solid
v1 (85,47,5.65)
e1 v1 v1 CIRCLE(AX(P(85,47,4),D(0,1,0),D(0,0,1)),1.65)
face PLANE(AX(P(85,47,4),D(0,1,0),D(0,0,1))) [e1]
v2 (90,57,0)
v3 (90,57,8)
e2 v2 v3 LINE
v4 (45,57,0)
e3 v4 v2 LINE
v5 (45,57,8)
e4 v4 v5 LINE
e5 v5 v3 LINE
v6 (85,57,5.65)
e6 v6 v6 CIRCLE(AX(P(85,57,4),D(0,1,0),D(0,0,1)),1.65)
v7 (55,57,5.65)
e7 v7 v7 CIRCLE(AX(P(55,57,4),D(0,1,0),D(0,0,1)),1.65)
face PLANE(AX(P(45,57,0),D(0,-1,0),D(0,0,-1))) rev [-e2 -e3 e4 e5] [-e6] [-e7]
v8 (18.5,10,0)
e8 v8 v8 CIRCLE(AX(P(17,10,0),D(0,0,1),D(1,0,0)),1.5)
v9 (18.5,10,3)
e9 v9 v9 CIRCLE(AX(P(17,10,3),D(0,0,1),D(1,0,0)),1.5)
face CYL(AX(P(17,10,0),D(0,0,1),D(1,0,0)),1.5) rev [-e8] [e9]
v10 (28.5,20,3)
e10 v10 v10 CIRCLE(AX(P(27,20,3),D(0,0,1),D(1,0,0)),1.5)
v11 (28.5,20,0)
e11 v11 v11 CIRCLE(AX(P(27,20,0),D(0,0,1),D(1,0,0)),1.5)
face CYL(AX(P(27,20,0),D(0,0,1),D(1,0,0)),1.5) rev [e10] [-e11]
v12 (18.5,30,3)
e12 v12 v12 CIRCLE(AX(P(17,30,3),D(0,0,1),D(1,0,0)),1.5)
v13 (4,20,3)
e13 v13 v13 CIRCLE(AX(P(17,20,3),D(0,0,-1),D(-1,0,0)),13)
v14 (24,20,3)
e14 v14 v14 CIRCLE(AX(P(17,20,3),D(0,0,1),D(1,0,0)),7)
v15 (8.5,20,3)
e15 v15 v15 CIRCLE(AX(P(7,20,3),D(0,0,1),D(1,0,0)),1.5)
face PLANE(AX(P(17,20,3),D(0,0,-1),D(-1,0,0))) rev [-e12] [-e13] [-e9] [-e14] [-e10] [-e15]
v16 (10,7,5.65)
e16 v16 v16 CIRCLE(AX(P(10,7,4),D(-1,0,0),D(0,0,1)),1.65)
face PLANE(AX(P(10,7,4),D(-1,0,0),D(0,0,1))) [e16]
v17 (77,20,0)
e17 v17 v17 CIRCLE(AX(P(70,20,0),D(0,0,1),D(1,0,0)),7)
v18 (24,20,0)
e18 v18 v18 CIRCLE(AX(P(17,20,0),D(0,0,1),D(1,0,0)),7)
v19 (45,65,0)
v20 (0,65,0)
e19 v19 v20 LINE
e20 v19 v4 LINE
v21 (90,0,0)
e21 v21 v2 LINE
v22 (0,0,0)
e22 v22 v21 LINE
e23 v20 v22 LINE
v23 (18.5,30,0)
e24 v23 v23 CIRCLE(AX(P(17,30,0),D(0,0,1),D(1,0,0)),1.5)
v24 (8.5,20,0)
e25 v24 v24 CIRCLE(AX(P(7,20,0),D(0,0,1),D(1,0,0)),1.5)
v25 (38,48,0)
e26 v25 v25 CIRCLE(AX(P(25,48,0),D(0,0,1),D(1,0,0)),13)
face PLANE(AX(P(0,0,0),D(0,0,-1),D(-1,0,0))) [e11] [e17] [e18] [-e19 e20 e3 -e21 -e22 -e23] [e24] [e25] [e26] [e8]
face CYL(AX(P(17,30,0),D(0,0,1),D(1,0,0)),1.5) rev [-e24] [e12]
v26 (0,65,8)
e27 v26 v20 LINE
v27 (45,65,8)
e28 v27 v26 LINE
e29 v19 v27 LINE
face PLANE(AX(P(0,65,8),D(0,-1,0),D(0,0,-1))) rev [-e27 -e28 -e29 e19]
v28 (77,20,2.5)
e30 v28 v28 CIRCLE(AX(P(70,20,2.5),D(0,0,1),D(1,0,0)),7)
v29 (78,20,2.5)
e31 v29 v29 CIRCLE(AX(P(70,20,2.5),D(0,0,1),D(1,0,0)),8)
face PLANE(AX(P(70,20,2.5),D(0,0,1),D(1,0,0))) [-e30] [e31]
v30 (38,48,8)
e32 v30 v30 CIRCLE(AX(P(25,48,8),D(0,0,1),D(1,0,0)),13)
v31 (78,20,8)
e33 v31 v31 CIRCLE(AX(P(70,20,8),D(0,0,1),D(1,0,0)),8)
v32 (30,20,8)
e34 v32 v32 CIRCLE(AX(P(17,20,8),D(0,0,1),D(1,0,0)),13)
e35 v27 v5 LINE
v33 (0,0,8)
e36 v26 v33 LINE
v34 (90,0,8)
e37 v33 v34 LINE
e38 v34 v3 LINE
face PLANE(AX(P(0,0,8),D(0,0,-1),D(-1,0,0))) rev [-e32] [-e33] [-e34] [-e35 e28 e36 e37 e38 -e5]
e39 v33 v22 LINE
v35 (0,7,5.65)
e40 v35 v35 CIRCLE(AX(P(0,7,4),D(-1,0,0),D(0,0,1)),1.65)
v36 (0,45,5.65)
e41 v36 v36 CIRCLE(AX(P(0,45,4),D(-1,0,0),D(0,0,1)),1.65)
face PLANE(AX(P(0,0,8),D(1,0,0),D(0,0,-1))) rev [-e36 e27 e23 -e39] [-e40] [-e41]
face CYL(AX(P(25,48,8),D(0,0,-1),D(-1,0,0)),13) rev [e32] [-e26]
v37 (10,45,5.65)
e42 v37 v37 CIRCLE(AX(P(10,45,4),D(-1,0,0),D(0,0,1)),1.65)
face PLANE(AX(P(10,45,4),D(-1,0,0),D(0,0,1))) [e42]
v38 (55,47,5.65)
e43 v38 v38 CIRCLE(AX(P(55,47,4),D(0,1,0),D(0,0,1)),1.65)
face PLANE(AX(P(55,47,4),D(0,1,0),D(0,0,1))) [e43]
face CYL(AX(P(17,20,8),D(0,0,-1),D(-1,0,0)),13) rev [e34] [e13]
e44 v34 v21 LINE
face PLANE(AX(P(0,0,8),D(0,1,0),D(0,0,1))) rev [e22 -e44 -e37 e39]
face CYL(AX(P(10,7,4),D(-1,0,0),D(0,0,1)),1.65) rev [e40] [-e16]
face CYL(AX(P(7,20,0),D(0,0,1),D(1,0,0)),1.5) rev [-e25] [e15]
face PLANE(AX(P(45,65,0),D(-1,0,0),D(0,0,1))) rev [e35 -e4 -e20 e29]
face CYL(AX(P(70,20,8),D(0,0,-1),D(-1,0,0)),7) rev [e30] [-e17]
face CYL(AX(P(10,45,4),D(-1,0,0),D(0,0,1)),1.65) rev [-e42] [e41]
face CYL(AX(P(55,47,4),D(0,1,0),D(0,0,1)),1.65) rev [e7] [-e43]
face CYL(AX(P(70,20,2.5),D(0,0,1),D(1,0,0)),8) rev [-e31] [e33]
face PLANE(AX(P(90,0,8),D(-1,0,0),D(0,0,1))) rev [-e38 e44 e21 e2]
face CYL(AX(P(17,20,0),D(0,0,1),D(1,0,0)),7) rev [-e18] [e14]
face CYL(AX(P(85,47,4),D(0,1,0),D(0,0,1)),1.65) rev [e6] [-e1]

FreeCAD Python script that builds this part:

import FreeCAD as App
import Part
import Sketcher

V = App.Vector
Q = App.Units.Quantity

doc = App.newDocument("Part")
params = doc.addObject("Spreadsheet::Sheet", "Params")
for row, (alias, value) in enumerate([
    ("sketch1_diameter", "26 mm"),
    ("sketch1_diameter2", "14 mm"),
    ("sketch1_width", "90 mm"),
    ("sketch1_height", "65 mm"),
    ("pad1_length", "8 mm"),
    ("sketch2_diameter", "26 mm"),
    ("pad2_length", "3 mm"),
    ("sketch3_diameter", "14 mm"),
    ("sketch3_diameter2", "3 mm"),
    ("sketch4_diameter", "16 mm"),
    ("pocket2_length", "5.5 mm"),
    ("sketch5_width", "45 mm"),
    ("sketch5_height", "8 mm"),
    ("sketch6_diameter", "3.3 mm"),
    ("pocket4_length", "10 mm"),
    ("sketch7_diameter", "3.3 mm"),
    ("pocket5_length", "10 mm"),
], start=1):
    params.set(f"A{row}", alias)
    params.set(f"B{row}", "=" + value)
    params.setAlias(f"B{row}", alias)

body = doc.addObject("PartDesign::Body", "Body")

# Sketch on XY plane
sketch1 = body.newObject("Sketcher::SketchObject", "Sketch")
sketch1.AttachmentSupport = (doc.getObject("XY_Plane"), [""])
sketch1.MapMode = "FlatFace"
sketch1.addGeometry([
    Part.LineSegment(V(0, 65, 0), V(0, 0, 0)),  # 0
    Part.LineSegment(V(0, 0, 0), V(90, 0, 0)),  # 1
    Part.LineSegment(V(90, 0, 0), V(90, 65, 0)),  # 2
    Part.LineSegment(V(90, 65, 0), V(0, 65, 0)),  # 3
    Part.Circle(V(17, 20, 0), V(0, 0, 1), 13),  # 4
    Part.Circle(V(70, 20, 0), V(0, 0, 1), 7),  # 5
    Part.Circle(V(25, 48, 0), V(0, 0, 1), 13),  # 6
], False)
sketch1.addConstraint([
    Sketcher.Constraint("Coincident", 0, 2, 1, 1),
    Sketcher.Constraint("Coincident", 1, 2, 2, 1),
    Sketcher.Constraint("Coincident", 2, 2, 3, 1),
    Sketcher.Constraint("Coincident", 3, 2, 0, 1),
    Sketcher.Constraint("Vertical", 0),
    Sketcher.Constraint("Horizontal", 1),
    Sketcher.Constraint("Vertical", 2),
    Sketcher.Constraint("Horizontal", 3),
    Sketcher.Constraint("Coincident", 0, 2, -1, 1),
    Sketcher.Constraint("Equal", 4, 6),
    Sketcher.Constraint("Horizontal", 4, 3, 5, 3),
    Sketcher.Constraint("Diameter", 4, Q("26 mm")),
    Sketcher.Constraint("Diameter", 5, Q("14 mm")),
    Sketcher.Constraint("DistanceX", 1, 1, 1, 2, Q("90 mm")),
    Sketcher.Constraint("DistanceY", 0, 2, 0, 1, Q("65 mm")),
    Sketcher.Constraint("DistanceX", -1, 1, 4, 3, Q("17 mm")),
    Sketcher.Constraint("DistanceY", -1, 1, 4, 3, Q("20 mm")),
    Sketcher.Constraint("DistanceX", -1, 1, 5, 3, Q("70 mm")),
    Sketcher.Constraint("DistanceX", -1, 1, 6, 3, Q("25 mm")),
    Sketcher.Constraint("DistanceY", -1, 1, 6, 3, Q("48 mm")),
])
sketch1.setExpression("Constraints[11]", "Params.sketch1_diameter")
sketch1.setExpression("Constraints[12]", "Params.sketch1_diameter2")
sketch1.setExpression("Constraints[13]", "Params.sketch1_width")
sketch1.setExpression("Constraints[14]", "Params.sketch1_height")
pad1 = body.newObject("PartDesign::Pad", "Pad")
pad1.Profile = sketch1
pad1.setExpression("Length", "Params.pad1_length")

# Sketch on XY plane
sketch2 = body.newObject("Sketcher::SketchObject", "Sketch001")
sketch2.AttachmentSupport = (doc.getObject("XY_Plane"), [""])
sketch2.MapMode = "FlatFace"
sketch2.addGeometry(Part.Circle(V(17, 20, 0), V(0, 0, 1), 13), False)
sketch2.addConstraint([
    Sketcher.Constraint("Diameter", 0, Q("26 mm")),
    Sketcher.Constraint("DistanceX", -1, 1, 0, 3, Q("17 mm")),
    Sketcher.Constraint("DistanceY", -1, 1, 0, 3, Q("20 mm")),
])
sketch2.setExpression("Constraints[0]", "Params.sketch2_diameter")
pad2 = body.newObject("PartDesign::Pad", "Pad001")
pad2.Profile = sketch2
pad2.setExpression("Length", "Params.pad2_length")

# Sketch on XY plane
sketch3 = body.newObject("Sketcher::SketchObject", "Sketch002")
sketch3.AttachmentSupport = (doc.getObject("XY_Plane"), [""])
sketch3.MapMode = "FlatFace"
sketch3.AttachmentOffset = App.Placement(V(0, 0, 3), App.Rotation())
sketch3.addGeometry([
    Part.Circle(V(17, 20, 0), V(0, 0, 1), 7),  # 0
    Part.Circle(V(27, 20, 0), V(0, 0, 1), 1.5),  # 1
    Part.Circle(V(17, 10, 0), V(0, 0, 1), 1.5),  # 2
    Part.Circle(V(7, 20, 0), V(0, 0, 1), 1.5),  # 3
    Part.Circle(V(17, 30, 0), V(0, 0, 1), 1.5),  # 4
], False)
sketch3.addConstraint([
    Sketcher.Constraint("Equal", 1, 2),
    Sketcher.Constraint("Equal", 2, 3),
    Sketcher.Constraint("Equal", 3, 4),
    Sketcher.Constraint("Horizontal", 0, 3, 1, 3),
    Sketcher.Constraint("Horizontal", 1, 3, 3, 3),
    Sketcher.Constraint("Vertical", 0, 3, 2, 3),
    Sketcher.Constraint("Vertical", 2, 3, 4, 3),
    Sketcher.Constraint("Diameter", 0, Q("14 mm")),
    Sketcher.Constraint("Diameter", 1, Q("3 mm")),
    Sketcher.Constraint("DistanceX", -1, 1, 0, 3, Q("17 mm")),
    Sketcher.Constraint("DistanceY", -1, 1, 0, 3, Q("20 mm")),
    Sketcher.Constraint("DistanceX", -1, 1, 1, 3, Q("27 mm")),
    Sketcher.Constraint("DistanceY", -1, 1, 2, 3, Q("10 mm")),
    Sketcher.Constraint("DistanceX", -1, 1, 3, 3, Q("7 mm")),
    Sketcher.Constraint("DistanceY", -1, 1, 4, 3, Q("30 mm")),
])
sketch3.setExpression("Constraints[7]", "Params.sketch3_diameter")
sketch3.setExpression("Constraints[8]", "Params.sketch3_diameter2")
pocket1 = body.newObject("PartDesign::Pocket", "Pocket")
pocket1.Profile = sketch3
pocket1.Type = "ThroughAll"

# Sketch on XY plane
sketch4 = body.newObject("Sketcher::SketchObject", "Sketch003")
sketch4.AttachmentSupport = (doc.getObject("XY_Plane"), [""])
sketch4.MapMode = "FlatFace"
sketch4.AttachmentOffset = App.Placement(V(0, 0, 8), App.Rotation())
sketch4.addGeometry(Part.Circle(V(70, 20, 0), V(0, 0, 1), 8), False)
sketch4.addConstraint([
    Sketcher.Constraint("Diameter", 0, Q("16 mm")),
    Sketcher.Constraint("DistanceX", -1, 1, 0, 3, Q("70 mm")),
    Sketcher.Constraint("DistanceY", -1, 1, 0, 3, Q("20 mm")),
])
sketch4.setExpression("Constraints[0]", "Params.sketch4_diameter")
pocket2 = body.newObject("PartDesign::Pocket", "Pocket001")
pocket2.Profile = sketch4
pocket2.setExpression("Length", "Params.pocket2_length")

# Sketch on XY plane
sketch5 = body.newObject("Sketcher::SketchObject", "Sketch004")
sketch5.AttachmentSupport = (doc.getObject("XY_Plane"), [""])
sketch5.MapMode = "FlatFace"
sketch5.AttachmentOffset = App.Placement(V(0, 0, 8), App.Rotation())
sketch5.addGeometry([
    Part.LineSegment(V(45, 65, 0), V(45, 57, 0)),
    Part.LineSegment(V(45, 57, 0), V(90, 57, 0)),
    Part.LineSegment(V(90, 57, 0), V(90, 65, 0)),
    Part.LineSegment(V(90, 65, 0), V(45, 65, 0)),
], False)
sketch5.addConstraint([
    Sketcher.Constraint("Coincident", 0, 2, 1, 1),
    Sketcher.Constraint("Coincident", 1, 2, 2, 1),
    Sketcher.Constraint("Coincident", 2, 2, 3, 1),
    Sketcher.Constraint("Coincident", 3, 2, 0, 1),
    Sketcher.Constraint("Vertical", 0),
    Sketcher.Constraint("Horizontal", 1),
    Sketcher.Constraint("Vertical", 2),
    Sketcher.Constraint("Horizontal", 3),
    Sketcher.Constraint("DistanceX", 1, 1, 1, 2, Q("45 mm")),
    Sketcher.Constraint("DistanceY", 0, 2, 0, 1, Q("8 mm")),
    Sketcher.Constraint("DistanceX", -1, 1, 0, 2, Q("45 mm")),
    Sketcher.Constraint("DistanceY", -1, 1, 0, 2, Q("57 mm")),
])
sketch5.setExpression("Constraints[8]", "Params.sketch5_width")
sketch5.setExpression("Constraints[9]", "Params.sketch5_height")
pocket3 = body.newObject("PartDesign::Pocket", "Pocket002")
pocket3.Profile = sketch5
pocket3.Type = "ThroughAll"

# Sketch on YZ plane
sketch6 = body.newObject("Sketcher::SketchObject", "Sketch005")
sketch6.AttachmentSupport = (doc.getObject("YZ_Plane"), [""])
sketch6.MapMode = "FlatFace"
sketch6.addGeometry([
    Part.Circle(V(7, 4, 0), V(0, 0, 1), 1.6),
    Part.Circle(V(45, 4, 0), V(0, 0, 1), 1.6),
], False)
sketch6.addConstraint([
    Sketcher.Constraint("Equal", 0, 1),
    Sketcher.Constraint("Horizontal", 0, 3, 1, 3),
    Sketcher.Constraint("Diameter", 0, Q("3.3 mm")),
    Sketcher.Constraint("DistanceX", -1, 1, 0, 3, Q("7 mm")),
    Sketcher.Constraint("DistanceY", -1, 1, 0, 3, Q("4 mm")),
    Sketcher.Constraint("DistanceX", -1, 1, 1, 3, Q("45 mm")),
])
sketch6.setExpression("Constraints[2]", "Params.sketch6_diameter")
pocket4 = body.newObject("PartDesign::Pocket", "Pocket003")
pocket4.Profile = sketch6
pocket4.setExpression("Length", "Params.pocket4_length")
pocket4.Reversed = True

# Sketch on XZ plane
sketch7 = body.newObject("Sketcher::SketchObject", "Sketch006")
sketch7.AttachmentSupport = (doc.getObject("XZ_Plane"), [""])
sketch7.MapMode = "FlatFace"
sketch7.AttachmentOffset = App.Placement(V(0, 0, -57), App.Rotation())
sketch7.addGeometry([
    Part.Circle(V(85, 4, 0), V(0, 0, 1), 1.6),
    Part.Circle(V(55, 4, 0), V(0, 0, 1), 1.6),
], False)
sketch7.addConstraint([
    Sketcher.Constraint("Equal", 0, 1),
    Sketcher.Constraint("Horizontal", 0, 3, 1, 3),
    Sketcher.Constraint("Diameter", 0, Q("3.3 mm")),
    Sketcher.Constraint("DistanceX", -1, 1, 0, 3, Q("85 mm")),
    Sketcher.Constraint("DistanceY", -1, 1, 0, 3, Q("4 mm")),
    Sketcher.Constraint("DistanceX", -1, 1, 1, 3, Q("55 mm")),
])
sketch7.setExpression("Constraints[2]", "Params.sketch7_diameter")
pocket5 = body.newObject("PartDesign::Pocket", "Pocket004")
pocket5.Profile = sketch7
pocket5.setExpression("Length", "Params.pocket5_length")
pocket5.Reversed = True

doc.recompute()
